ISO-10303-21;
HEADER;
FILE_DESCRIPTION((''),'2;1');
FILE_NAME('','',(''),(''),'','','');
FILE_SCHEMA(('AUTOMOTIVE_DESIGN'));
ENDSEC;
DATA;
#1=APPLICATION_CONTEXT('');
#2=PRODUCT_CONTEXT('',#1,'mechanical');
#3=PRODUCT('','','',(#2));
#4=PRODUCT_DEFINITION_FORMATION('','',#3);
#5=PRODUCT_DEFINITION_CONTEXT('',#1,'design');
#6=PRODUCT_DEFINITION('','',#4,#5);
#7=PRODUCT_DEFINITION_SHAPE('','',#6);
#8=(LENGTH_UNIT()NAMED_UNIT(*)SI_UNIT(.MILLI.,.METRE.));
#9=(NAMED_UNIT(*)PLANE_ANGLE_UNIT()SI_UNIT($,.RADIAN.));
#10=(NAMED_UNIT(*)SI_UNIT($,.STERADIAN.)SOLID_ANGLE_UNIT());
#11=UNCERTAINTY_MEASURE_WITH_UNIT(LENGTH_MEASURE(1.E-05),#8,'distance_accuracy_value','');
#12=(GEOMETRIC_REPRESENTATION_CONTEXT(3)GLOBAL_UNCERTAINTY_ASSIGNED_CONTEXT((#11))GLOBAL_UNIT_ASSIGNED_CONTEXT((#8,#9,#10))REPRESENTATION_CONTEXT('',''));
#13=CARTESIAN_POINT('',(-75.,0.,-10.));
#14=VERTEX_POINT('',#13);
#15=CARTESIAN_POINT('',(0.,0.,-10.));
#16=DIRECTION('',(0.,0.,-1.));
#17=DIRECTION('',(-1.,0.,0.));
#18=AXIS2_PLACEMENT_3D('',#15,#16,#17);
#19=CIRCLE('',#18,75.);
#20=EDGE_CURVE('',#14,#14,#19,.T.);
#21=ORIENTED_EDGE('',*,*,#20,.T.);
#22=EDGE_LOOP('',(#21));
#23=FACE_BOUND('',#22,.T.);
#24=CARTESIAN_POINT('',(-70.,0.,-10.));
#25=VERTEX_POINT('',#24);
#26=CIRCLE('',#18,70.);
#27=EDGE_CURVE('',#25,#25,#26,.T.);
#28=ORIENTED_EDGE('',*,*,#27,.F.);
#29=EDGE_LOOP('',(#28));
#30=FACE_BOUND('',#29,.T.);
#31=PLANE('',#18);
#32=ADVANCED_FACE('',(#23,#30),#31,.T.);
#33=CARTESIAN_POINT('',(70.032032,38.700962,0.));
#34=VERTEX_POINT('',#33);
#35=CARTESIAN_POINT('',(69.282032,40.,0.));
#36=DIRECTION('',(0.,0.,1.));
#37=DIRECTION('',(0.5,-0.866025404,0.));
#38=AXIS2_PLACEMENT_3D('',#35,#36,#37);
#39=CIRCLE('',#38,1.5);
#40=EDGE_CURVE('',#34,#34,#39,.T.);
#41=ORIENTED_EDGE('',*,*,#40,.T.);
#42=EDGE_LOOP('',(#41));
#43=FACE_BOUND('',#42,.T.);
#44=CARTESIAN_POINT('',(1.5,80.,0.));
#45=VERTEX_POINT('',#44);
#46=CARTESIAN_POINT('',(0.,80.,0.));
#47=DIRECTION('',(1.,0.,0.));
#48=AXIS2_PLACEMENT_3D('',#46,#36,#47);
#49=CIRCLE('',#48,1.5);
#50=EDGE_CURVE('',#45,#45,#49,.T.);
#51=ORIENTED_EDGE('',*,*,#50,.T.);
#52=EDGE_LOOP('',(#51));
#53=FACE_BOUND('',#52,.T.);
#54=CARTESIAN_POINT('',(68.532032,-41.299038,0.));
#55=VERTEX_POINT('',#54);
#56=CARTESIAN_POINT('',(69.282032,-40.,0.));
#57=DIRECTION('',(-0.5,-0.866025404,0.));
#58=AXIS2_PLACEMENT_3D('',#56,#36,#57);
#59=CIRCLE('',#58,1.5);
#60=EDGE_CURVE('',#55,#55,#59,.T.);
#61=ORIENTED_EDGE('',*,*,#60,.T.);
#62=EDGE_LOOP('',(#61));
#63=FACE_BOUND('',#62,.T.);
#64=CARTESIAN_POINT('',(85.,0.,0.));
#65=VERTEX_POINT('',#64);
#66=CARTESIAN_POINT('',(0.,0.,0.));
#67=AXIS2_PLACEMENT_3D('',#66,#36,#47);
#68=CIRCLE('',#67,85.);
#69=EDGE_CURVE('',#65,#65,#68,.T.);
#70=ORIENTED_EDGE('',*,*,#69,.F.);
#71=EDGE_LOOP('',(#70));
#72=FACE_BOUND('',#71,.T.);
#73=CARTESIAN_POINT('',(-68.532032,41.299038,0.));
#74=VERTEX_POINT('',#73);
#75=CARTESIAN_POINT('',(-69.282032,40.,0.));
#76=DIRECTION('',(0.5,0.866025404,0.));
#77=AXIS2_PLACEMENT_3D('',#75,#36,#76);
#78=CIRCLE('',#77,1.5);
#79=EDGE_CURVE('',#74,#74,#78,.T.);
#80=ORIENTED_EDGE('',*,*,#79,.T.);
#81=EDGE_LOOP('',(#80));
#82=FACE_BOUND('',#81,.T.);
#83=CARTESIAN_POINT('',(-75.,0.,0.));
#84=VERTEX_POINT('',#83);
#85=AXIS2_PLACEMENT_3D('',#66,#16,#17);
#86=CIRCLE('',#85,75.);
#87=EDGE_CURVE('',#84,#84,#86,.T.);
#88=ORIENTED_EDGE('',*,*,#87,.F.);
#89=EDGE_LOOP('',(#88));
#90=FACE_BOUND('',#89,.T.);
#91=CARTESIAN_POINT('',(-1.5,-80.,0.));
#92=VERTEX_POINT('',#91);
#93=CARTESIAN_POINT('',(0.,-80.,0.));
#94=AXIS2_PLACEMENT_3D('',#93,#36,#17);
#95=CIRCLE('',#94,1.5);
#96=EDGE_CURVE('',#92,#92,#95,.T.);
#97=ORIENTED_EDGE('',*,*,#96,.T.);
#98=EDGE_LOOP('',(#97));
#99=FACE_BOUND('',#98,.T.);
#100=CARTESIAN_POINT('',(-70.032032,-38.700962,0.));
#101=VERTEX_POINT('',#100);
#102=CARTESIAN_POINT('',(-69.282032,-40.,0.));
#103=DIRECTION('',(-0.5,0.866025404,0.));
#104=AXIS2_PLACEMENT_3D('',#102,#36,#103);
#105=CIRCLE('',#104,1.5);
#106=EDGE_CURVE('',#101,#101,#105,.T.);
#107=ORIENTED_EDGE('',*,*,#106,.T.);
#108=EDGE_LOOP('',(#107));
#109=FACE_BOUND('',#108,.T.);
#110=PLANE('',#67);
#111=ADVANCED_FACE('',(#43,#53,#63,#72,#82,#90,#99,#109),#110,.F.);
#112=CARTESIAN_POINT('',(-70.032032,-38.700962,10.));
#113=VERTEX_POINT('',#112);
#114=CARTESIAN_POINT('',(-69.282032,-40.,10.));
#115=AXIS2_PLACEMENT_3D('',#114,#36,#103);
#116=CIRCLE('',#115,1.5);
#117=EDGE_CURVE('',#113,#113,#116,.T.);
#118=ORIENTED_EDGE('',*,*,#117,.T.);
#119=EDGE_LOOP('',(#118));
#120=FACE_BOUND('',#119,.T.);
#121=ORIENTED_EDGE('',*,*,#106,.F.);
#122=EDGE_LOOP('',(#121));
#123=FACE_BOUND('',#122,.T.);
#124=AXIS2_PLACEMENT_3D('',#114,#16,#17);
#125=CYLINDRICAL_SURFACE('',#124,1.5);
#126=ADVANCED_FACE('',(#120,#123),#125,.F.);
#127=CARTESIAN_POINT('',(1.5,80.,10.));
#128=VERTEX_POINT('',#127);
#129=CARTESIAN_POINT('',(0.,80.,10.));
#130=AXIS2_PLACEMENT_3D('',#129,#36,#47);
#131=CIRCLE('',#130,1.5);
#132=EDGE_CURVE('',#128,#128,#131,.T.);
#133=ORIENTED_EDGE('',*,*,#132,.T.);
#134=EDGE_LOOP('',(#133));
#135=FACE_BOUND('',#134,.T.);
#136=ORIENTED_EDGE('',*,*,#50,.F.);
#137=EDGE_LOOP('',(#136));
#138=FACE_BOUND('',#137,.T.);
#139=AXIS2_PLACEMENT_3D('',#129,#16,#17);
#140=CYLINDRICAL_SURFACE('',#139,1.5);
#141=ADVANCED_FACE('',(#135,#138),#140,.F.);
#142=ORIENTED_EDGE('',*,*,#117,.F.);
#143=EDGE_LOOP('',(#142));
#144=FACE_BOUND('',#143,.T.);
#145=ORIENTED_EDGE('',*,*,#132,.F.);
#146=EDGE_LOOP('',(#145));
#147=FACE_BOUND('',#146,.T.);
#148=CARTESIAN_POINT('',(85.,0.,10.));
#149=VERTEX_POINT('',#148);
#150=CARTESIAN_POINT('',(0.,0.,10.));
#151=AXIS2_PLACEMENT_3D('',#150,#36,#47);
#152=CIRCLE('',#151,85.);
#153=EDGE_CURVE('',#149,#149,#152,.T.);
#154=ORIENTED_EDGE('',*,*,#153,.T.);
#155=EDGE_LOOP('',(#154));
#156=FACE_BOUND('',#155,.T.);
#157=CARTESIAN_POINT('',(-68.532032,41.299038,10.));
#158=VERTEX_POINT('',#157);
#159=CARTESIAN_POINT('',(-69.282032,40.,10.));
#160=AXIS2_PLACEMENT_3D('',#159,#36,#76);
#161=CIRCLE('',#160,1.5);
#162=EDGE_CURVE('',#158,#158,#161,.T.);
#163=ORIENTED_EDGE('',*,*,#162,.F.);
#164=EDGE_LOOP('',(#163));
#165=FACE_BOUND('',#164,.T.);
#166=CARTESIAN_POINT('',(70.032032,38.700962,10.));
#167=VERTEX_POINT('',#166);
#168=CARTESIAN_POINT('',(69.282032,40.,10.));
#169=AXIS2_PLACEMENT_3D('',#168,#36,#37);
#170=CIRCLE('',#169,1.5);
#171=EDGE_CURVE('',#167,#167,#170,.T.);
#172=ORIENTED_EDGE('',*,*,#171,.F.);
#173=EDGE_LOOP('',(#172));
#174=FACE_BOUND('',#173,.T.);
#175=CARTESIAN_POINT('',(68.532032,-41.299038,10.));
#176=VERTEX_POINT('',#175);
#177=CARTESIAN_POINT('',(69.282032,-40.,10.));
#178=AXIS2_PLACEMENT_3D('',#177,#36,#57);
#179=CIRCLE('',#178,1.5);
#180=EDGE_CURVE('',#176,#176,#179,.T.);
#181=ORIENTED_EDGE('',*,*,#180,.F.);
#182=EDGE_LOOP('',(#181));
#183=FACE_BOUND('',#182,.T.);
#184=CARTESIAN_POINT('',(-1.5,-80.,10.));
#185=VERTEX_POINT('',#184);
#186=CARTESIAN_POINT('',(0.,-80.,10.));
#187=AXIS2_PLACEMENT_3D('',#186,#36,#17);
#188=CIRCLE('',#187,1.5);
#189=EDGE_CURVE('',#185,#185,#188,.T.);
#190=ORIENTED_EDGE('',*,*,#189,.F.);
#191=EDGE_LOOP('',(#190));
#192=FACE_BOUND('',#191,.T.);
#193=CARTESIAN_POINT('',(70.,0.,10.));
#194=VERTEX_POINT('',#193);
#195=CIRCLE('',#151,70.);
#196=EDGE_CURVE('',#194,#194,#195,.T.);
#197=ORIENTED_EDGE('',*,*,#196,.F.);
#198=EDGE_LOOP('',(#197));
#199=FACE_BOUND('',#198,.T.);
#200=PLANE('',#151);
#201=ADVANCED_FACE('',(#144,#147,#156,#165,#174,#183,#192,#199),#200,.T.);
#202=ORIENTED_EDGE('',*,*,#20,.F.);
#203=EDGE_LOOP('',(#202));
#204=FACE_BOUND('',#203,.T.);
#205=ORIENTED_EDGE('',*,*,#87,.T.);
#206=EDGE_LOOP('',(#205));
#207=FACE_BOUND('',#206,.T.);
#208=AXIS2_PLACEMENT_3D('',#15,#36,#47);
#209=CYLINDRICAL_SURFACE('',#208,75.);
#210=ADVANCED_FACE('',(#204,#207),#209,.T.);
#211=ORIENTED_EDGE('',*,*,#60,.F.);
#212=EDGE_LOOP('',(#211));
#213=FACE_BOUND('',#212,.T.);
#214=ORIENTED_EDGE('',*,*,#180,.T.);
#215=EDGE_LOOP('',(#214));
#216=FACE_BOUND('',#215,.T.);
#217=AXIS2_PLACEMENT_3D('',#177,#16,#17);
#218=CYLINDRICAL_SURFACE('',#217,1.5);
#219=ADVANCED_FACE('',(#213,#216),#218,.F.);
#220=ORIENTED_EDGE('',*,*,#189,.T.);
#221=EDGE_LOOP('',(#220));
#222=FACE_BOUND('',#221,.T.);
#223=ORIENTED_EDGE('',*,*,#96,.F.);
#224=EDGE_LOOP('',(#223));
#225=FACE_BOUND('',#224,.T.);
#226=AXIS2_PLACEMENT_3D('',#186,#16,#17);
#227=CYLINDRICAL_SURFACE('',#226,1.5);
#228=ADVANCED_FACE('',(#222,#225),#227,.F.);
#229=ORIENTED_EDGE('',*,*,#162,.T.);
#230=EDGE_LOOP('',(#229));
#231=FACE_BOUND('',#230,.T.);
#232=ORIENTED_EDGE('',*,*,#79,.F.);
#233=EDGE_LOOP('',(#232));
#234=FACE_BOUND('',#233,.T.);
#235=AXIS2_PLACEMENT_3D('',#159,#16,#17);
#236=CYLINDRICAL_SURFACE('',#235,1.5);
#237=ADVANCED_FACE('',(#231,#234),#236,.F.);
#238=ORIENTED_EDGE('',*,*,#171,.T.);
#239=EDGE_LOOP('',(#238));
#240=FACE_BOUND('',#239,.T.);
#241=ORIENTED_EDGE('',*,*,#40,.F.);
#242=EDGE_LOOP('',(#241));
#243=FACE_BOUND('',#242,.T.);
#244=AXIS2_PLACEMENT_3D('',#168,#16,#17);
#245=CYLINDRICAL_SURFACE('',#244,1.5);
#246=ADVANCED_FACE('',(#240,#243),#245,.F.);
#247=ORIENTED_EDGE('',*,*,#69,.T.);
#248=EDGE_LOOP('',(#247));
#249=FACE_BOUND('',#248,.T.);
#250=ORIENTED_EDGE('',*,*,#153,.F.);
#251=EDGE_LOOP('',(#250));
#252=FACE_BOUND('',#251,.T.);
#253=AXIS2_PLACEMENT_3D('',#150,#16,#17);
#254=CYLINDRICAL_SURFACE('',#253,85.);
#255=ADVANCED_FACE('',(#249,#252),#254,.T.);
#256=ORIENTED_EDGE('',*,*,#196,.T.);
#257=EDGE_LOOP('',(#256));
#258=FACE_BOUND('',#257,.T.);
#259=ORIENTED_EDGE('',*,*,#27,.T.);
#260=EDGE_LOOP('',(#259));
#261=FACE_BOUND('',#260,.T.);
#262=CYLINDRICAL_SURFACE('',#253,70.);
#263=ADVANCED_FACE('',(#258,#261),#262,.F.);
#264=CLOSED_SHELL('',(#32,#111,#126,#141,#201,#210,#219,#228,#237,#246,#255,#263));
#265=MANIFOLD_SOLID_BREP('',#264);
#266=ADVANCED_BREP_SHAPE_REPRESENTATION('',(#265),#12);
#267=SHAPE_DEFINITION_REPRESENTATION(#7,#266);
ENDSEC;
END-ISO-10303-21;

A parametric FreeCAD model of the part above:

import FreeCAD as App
import Part
import Sketcher
from FreeCAD import Vector

doc = App.newDocument("Part")
body = doc.addObject("PartDesign::Body", "Body")

# Sketch on XY plane
sketch1 = doc.addObject("Sketcher::SketchObject", "Sketch")
body.addObject(sketch1)
sketch1.AttachmentSupport = (doc.XY_Plane, [""])
sketch1.MapMode = "FlatFace"
sketch1.addGeometry(Part.Circle(Vector(0, 0, 0), Vector(0, 0, 1), 85), False)
sketch1.addGeometry(Part.Circle(Vector(0, 0, 0), Vector(0, 0, 1), 70), False)
sketch1.addConstraint(Sketcher.Constraint("Coincident", 0, 3, -1, 1))
sketch1.addConstraint(Sketcher.Constraint("Coincident", 1, 3, -1, 1))
sketch1.addConstraint(Sketcher.Constraint("Diameter", 0, 170.0))
sketch1.addConstraint(Sketcher.Constraint("Diameter", 1, 140.0))
pad1 = doc.addObject("PartDesign::Pad", "Pad")
body.addObject(pad1)
pad1.Profile = sketch1
pad1.Length = 10

# Sketch on XY plane
sketch2 = doc.addObject("Sketcher::SketchObject", "Sketch001")
body.addObject(sketch2)
sketch2.AttachmentSupport = (doc.XY_Plane, [""])
sketch2.MapMode = "FlatFace"
sketch2.addGeometry(Part.Circle(Vector(0, 80, 0), Vector(0, 0, 1), 1.5), False)
sketch2.addConstraint(Sketcher.Constraint("PointOnObject", 0, 3, -2))
sketch2.addConstraint(Sketcher.Constraint("Diameter", 0, 3.0))
sketch2.addConstraint(Sketcher.Constraint("DistanceY", -1, 1, 0, 3, 80.0))
pocket1 = doc.addObject("PartDesign::Pocket", "Pocket")
body.addObject(pocket1)
pocket1.Profile = sketch2
pocket1.Length = 10
pocket1.Reversed = True
doc.recompute()

polarpattern = doc.addObject("PartDesign::PolarPattern", "PolarPattern")
body.addObject(polarpattern)
polarpattern.Originals = [pocket1]
polarpattern.Axis = (doc.Z_Axis, [""])
polarpattern.Angle = 360
polarpattern.Occurrences = 6
body.Tip = polarpattern

# Sketch on XY plane
sketch3 = doc.addObject("Sketcher::SketchObject", "Sketch002")
body.addObject(sketch3)
sketch3.AttachmentSupport = (doc.XY_Plane, [""])
sketch3.MapMode = "FlatFace"
sketch3.AttachmentOffset = App.Placement(Vector(0, 0, -10), App.Rotation())
sketch3.addGeometry(Part.Circle(Vector(0, 0, 0), Vector(0, 0, 1), 75), False)
sketch3.addGeometry(Part.Circle(Vector(0, 0, 0), Vector(0, 0, 1), 70), False)
sketch3.addConstraint(Sketcher.Constraint("Coincident", 0, 3, -1, 1))
sketch3.addConstraint(Sketcher.Constraint("Coincident", 1, 3, -1, 1))
sketch3.addConstraint(Sketcher.Constraint("Diameter", 0, 150.0))
sketch3.addConstraint(Sketcher.Constraint("Diameter", 1, 140.0))
pad2 = doc.addObject("PartDesign::Pad", "Pad001")
body.addObject(pad2)
pad2.Profile = sketch3
pad2.Length = 10

doc.recompute()
